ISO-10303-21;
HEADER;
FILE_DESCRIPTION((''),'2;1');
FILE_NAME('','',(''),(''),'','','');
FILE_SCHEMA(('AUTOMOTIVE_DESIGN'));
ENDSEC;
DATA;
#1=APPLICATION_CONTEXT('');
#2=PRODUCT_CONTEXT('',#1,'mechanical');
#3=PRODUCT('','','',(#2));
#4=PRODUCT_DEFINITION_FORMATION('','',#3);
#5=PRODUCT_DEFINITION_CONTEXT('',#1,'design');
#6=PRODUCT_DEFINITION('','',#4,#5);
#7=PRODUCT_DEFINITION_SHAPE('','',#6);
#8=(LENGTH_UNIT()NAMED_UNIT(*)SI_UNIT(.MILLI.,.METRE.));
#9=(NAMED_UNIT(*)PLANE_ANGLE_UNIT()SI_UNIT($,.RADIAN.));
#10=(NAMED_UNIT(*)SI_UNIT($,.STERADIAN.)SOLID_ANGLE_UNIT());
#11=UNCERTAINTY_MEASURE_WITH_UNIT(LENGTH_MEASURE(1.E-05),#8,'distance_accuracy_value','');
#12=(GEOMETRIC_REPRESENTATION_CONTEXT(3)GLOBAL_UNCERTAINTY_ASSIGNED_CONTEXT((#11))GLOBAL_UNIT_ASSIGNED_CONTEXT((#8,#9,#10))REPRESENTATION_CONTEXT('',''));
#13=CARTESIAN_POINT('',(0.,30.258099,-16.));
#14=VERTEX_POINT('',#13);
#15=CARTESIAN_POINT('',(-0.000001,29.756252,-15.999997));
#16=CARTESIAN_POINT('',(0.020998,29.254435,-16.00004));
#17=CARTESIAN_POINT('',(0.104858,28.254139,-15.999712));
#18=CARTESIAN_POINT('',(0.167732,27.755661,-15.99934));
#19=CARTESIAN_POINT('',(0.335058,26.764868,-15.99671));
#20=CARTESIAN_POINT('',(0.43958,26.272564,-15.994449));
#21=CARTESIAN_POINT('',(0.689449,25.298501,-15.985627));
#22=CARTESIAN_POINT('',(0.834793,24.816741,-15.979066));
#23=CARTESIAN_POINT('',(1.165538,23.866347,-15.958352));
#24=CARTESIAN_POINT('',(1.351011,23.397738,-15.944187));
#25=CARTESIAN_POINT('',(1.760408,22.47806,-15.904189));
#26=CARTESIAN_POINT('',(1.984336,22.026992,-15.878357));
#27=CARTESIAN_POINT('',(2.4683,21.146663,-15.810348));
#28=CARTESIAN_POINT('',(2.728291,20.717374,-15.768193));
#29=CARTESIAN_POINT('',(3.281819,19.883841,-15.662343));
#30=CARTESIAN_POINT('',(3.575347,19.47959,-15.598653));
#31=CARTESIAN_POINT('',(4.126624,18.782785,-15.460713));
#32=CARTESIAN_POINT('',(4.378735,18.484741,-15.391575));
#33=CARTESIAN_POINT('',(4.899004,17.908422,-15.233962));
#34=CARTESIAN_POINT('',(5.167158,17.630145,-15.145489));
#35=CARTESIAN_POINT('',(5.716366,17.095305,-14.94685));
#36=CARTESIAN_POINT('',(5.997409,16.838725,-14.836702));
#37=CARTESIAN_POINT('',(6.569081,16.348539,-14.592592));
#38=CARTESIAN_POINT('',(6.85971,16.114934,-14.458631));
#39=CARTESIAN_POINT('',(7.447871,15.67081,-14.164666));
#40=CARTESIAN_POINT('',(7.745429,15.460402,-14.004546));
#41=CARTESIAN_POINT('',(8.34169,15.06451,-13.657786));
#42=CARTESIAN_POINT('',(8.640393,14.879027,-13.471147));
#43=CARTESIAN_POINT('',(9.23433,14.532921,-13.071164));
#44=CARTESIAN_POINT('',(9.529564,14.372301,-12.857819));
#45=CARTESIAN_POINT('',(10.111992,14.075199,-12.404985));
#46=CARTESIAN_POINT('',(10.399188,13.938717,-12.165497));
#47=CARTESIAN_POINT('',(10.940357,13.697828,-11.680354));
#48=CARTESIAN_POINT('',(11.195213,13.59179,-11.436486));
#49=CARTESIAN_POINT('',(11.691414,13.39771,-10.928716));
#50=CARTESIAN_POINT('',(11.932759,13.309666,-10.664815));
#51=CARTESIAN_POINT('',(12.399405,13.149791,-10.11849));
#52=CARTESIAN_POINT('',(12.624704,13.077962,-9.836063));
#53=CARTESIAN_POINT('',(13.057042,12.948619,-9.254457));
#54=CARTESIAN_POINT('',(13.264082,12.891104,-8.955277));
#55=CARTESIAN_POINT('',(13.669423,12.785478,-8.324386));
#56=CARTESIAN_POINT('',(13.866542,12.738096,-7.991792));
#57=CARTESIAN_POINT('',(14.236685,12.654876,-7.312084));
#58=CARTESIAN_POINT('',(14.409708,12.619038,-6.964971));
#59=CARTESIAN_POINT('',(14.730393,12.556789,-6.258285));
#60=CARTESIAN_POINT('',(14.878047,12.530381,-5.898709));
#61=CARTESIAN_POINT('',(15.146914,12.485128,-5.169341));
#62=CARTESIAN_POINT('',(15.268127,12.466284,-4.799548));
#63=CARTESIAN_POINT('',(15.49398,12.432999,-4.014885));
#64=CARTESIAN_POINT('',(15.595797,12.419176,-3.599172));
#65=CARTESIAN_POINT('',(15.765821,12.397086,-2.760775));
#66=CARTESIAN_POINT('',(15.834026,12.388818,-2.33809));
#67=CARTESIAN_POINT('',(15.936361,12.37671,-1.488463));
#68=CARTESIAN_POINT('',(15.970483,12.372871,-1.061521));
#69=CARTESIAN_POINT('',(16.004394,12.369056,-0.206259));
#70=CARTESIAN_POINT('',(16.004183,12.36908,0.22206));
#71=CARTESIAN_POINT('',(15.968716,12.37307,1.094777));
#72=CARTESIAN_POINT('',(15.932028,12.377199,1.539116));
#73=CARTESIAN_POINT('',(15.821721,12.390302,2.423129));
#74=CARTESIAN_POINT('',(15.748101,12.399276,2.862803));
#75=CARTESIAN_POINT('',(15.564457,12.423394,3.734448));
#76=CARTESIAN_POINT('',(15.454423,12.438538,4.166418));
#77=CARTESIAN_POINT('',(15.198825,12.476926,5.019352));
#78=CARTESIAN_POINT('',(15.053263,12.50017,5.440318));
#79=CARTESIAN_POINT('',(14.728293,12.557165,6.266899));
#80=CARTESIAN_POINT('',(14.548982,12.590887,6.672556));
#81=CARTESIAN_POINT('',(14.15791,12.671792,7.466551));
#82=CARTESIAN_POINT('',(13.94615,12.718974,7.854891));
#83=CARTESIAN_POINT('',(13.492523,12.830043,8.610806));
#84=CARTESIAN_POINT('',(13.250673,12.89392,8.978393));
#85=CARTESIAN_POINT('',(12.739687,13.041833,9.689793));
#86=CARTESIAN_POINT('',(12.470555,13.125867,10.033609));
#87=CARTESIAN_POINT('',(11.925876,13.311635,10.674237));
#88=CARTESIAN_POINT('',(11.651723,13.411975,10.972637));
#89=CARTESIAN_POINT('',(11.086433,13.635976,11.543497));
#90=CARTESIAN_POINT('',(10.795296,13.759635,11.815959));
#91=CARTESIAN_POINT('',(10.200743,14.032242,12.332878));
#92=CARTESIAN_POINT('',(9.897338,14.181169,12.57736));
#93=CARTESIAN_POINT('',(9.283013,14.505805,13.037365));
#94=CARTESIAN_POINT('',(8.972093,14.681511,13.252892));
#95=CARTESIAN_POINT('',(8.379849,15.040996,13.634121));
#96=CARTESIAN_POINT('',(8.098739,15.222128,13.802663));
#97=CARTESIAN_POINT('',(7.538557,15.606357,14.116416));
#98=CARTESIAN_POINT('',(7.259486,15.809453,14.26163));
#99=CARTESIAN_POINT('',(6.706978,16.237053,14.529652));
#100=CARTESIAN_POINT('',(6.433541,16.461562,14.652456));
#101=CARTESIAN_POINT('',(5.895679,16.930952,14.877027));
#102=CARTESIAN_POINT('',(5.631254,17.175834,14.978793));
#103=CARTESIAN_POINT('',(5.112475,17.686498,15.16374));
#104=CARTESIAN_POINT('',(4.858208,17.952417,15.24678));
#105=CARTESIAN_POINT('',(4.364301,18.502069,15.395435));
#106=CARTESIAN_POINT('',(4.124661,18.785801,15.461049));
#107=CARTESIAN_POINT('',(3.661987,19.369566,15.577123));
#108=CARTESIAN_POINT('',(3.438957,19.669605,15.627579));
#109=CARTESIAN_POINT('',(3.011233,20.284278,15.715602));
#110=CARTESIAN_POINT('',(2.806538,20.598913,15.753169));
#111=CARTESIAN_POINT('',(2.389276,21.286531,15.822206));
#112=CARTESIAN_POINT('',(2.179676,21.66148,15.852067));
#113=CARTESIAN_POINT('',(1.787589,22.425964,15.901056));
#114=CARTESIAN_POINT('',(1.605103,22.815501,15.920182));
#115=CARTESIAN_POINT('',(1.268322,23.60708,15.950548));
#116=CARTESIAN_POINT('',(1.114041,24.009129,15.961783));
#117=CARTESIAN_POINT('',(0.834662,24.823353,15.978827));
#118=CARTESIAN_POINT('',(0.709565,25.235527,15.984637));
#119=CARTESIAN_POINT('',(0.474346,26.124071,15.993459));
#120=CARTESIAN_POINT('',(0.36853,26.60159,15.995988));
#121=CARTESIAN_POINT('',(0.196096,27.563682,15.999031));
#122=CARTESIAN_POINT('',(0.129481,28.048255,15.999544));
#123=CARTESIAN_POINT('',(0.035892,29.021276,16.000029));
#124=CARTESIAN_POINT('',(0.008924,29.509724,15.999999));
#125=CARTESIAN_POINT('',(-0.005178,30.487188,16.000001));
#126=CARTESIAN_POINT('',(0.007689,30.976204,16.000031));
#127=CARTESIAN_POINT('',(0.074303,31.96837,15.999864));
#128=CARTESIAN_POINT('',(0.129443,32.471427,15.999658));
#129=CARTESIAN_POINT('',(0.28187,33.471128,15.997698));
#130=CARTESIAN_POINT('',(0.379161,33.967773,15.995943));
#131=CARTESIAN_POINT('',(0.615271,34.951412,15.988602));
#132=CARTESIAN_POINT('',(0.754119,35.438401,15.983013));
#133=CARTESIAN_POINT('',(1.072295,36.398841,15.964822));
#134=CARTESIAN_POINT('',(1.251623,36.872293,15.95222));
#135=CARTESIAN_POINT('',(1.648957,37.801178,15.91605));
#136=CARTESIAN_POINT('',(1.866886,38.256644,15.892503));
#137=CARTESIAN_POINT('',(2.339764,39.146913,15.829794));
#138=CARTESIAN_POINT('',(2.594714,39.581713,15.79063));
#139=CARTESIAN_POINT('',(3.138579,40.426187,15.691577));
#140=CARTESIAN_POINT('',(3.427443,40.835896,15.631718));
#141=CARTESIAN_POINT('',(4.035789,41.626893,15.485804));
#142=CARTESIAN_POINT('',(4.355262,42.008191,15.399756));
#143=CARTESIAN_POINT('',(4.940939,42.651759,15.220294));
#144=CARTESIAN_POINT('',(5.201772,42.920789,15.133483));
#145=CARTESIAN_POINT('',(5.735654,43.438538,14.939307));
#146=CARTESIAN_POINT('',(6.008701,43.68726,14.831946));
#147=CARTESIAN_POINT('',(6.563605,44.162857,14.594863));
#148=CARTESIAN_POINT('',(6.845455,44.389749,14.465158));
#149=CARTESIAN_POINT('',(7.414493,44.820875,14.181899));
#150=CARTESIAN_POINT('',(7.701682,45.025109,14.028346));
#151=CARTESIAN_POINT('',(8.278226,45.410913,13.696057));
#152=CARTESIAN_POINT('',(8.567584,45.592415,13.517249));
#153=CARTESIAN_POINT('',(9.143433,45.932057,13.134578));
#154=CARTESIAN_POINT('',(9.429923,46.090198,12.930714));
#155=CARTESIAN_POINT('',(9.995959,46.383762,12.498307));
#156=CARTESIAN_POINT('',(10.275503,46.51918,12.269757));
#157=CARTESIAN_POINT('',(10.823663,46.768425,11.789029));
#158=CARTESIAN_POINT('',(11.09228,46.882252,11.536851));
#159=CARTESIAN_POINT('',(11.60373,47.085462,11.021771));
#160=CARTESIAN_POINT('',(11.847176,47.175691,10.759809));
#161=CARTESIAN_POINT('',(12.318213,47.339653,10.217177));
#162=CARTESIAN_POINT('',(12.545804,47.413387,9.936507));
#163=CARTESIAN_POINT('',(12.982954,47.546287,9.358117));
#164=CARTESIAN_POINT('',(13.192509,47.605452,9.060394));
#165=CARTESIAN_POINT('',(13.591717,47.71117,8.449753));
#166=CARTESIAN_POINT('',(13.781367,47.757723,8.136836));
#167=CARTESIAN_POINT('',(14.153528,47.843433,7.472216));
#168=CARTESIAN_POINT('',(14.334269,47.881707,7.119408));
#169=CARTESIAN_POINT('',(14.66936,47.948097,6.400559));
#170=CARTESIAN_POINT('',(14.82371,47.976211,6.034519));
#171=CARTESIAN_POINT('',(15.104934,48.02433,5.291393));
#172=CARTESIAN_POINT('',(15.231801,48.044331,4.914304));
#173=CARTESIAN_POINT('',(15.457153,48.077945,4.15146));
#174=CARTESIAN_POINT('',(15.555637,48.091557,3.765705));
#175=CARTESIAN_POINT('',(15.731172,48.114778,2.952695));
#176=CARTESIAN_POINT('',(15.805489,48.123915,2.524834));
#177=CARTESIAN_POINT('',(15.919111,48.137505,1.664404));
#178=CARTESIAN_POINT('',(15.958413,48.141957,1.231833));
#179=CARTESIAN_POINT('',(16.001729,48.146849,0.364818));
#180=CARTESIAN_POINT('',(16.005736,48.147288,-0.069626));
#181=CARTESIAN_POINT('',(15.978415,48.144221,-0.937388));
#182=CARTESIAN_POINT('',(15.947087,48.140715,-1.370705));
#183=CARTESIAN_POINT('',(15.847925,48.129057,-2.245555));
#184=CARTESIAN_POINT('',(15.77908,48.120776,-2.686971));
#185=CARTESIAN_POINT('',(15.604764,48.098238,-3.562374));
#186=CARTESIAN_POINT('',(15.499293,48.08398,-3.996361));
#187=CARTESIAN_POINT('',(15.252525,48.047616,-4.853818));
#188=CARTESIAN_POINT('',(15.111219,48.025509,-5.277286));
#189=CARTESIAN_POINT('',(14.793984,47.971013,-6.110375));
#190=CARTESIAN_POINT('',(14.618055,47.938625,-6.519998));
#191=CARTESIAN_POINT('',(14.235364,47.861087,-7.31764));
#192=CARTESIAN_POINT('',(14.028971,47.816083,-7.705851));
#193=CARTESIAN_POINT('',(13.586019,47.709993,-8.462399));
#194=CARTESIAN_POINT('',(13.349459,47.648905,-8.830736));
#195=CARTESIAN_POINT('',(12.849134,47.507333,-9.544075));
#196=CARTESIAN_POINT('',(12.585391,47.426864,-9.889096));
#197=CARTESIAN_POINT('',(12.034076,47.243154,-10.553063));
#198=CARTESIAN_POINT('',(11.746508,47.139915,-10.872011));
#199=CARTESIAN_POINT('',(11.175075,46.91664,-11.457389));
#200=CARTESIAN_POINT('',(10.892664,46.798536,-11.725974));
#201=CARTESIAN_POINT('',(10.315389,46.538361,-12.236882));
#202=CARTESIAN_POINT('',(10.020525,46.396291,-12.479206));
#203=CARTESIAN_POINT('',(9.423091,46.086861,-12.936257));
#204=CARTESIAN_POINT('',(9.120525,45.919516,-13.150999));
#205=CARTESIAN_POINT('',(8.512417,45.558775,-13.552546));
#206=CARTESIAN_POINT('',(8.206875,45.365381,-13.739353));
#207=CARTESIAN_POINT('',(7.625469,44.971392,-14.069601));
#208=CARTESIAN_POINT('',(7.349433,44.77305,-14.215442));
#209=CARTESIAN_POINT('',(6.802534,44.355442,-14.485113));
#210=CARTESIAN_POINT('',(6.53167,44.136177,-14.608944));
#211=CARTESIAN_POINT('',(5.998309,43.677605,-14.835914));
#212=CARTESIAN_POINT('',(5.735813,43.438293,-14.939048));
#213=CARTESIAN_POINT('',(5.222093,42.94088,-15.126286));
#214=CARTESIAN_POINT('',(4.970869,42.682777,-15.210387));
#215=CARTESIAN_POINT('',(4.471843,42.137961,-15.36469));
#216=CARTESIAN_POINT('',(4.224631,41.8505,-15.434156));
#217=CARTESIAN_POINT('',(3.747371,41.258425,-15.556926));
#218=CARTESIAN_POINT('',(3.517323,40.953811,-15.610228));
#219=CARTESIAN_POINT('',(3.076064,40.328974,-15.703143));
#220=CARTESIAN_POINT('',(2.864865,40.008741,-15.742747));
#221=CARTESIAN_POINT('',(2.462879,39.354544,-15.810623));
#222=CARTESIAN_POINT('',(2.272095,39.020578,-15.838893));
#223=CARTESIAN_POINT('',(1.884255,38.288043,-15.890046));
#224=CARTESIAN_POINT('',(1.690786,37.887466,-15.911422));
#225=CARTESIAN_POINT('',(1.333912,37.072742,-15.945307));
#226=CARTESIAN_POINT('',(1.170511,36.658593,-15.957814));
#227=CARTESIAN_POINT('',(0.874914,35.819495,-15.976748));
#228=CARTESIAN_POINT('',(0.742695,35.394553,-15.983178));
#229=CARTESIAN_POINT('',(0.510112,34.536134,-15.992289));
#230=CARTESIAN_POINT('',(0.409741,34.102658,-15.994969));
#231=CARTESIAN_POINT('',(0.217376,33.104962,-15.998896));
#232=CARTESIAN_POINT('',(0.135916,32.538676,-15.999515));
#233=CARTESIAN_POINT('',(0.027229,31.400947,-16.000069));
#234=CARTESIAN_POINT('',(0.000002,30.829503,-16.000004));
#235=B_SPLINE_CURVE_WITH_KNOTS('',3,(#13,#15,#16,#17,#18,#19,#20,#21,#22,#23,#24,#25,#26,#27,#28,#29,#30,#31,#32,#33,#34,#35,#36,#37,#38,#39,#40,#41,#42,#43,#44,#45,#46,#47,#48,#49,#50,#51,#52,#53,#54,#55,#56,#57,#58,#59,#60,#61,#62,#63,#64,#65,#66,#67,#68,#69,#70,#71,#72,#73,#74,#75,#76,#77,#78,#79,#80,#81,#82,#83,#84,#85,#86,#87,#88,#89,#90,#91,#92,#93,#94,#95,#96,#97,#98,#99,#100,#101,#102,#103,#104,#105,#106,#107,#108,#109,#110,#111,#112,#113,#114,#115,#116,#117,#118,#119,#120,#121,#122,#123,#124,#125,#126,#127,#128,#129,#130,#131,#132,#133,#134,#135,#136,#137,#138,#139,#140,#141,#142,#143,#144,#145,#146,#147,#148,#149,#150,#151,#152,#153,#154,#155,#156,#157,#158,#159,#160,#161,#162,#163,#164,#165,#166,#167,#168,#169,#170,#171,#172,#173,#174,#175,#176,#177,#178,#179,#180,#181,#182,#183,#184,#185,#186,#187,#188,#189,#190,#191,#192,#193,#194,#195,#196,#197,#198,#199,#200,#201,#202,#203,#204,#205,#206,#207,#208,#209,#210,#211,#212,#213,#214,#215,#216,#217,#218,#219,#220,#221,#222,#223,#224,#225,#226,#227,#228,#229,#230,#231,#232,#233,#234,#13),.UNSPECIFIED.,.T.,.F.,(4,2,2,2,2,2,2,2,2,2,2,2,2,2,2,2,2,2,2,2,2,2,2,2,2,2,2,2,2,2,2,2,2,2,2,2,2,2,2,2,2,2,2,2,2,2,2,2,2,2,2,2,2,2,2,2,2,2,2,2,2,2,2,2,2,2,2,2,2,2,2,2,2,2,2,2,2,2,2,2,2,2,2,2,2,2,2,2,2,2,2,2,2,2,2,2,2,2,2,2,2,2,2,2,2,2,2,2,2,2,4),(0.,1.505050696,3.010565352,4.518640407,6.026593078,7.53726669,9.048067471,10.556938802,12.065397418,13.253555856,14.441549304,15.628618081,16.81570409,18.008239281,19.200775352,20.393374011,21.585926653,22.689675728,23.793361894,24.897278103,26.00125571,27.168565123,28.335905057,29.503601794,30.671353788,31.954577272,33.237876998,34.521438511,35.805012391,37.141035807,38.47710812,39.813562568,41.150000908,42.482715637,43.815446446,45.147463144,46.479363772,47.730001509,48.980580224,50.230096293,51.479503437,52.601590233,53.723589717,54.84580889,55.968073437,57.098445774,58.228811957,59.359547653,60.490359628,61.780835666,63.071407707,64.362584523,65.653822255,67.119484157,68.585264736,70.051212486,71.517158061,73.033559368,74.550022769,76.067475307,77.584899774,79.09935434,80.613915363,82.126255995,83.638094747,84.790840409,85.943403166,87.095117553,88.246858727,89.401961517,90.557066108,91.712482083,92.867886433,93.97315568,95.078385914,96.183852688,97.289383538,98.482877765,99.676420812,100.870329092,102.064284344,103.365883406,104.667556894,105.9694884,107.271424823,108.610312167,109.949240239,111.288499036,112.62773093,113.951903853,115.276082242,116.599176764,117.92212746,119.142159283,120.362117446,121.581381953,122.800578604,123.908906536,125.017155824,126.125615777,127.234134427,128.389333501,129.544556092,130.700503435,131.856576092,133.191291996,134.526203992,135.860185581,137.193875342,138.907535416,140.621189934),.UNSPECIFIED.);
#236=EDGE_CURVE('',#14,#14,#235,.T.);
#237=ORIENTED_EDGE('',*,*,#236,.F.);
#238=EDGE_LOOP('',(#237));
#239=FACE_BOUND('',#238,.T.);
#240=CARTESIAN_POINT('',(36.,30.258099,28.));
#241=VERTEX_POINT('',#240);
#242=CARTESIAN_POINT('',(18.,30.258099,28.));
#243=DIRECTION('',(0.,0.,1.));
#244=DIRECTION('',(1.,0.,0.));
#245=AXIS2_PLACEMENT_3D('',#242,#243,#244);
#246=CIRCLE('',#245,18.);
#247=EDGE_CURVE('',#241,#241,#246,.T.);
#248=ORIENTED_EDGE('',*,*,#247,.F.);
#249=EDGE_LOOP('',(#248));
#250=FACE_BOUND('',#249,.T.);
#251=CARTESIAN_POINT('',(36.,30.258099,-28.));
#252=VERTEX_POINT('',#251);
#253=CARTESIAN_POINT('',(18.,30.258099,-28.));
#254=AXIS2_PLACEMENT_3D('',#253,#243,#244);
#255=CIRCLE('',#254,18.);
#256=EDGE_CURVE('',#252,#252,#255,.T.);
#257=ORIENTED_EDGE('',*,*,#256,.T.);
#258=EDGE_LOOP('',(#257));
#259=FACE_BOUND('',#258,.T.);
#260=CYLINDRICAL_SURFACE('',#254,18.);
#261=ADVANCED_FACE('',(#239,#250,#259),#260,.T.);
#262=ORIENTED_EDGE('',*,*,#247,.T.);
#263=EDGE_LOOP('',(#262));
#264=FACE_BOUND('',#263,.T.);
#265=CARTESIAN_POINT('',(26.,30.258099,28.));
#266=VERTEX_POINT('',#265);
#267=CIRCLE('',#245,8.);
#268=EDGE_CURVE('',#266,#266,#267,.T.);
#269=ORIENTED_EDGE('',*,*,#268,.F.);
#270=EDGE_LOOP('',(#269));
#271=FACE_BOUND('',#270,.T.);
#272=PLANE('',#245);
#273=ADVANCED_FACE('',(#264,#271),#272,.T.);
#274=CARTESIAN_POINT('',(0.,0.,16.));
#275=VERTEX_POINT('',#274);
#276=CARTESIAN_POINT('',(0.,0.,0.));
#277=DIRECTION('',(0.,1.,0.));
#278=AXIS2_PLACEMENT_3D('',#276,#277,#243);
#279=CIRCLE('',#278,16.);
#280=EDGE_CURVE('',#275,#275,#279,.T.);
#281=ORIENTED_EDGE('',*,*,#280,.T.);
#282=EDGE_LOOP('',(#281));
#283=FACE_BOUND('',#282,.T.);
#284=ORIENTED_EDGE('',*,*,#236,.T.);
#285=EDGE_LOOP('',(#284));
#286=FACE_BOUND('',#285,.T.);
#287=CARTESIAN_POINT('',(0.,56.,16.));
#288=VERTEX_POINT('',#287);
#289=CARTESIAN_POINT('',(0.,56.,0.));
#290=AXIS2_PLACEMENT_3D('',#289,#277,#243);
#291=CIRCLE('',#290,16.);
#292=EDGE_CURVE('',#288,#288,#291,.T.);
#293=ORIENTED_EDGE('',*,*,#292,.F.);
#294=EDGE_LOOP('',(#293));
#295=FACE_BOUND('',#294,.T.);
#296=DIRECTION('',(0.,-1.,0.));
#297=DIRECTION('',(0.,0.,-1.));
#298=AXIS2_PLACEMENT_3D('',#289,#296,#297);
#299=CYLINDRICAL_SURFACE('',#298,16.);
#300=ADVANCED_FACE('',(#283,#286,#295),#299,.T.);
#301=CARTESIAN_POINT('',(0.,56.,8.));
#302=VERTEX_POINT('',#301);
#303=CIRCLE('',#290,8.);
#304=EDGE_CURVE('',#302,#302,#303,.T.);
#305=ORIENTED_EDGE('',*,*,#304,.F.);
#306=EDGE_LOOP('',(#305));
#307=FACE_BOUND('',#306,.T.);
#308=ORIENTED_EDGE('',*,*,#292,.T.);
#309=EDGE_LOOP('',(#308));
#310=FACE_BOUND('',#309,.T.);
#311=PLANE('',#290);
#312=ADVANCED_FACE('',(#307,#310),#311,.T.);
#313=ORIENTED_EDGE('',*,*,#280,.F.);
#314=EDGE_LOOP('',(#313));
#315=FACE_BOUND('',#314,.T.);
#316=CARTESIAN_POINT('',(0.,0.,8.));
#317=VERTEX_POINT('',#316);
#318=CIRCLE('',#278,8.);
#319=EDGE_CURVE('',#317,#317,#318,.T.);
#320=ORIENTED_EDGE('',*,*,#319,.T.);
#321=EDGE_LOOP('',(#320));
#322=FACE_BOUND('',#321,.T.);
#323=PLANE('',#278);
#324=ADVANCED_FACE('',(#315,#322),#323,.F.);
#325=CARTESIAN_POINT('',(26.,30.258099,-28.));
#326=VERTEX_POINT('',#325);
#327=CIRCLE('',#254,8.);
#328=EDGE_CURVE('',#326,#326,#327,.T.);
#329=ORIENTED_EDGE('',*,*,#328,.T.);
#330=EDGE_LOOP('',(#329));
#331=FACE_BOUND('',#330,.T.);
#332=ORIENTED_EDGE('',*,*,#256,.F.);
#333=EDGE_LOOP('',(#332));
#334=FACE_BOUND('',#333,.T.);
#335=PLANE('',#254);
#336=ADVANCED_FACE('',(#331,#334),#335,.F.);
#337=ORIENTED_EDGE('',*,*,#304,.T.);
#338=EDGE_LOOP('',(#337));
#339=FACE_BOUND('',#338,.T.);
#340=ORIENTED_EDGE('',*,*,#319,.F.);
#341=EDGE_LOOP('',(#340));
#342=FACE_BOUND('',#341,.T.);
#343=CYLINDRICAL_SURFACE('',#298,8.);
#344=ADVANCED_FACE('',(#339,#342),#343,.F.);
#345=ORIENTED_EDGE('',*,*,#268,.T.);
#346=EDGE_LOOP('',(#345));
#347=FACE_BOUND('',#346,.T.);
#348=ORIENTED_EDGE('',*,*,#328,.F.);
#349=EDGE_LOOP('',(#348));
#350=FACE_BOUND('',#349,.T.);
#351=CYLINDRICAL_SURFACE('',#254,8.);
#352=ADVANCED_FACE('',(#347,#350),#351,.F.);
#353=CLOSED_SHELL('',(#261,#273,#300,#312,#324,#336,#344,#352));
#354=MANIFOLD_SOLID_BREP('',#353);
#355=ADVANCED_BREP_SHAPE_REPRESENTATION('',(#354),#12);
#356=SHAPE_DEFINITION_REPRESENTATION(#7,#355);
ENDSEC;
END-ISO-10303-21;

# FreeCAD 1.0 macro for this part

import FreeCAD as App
import Part
import Sketcher
Q = App.Units.Quantity

doc = App.newDocument("Part")
body = doc.addObject("PartDesign::Body", "Body")

# Sketch on XZ plane
sketch1 = doc.addObject("Sketcher::SketchObject", "Sketch")
body.addObject(sketch1)
sketch1.AttachmentSupport = (doc.XZ_Plane, [""])
sketch1.MapMode = "FlatFace"
sketch1.addGeometry(Part.Circle(App.Vector(0, 0, 0), App.Vector(0, 0, 1), 16), False)
sketch1.addGeometry(Part.Circle(App.Vector(0, 0, 0), App.Vector(0, 0, 1), 8), False)
sketch1.addConstraint(Sketcher.Constraint("Coincident", 0, 3, -1, 1))
sketch1.addConstraint(Sketcher.Constraint("Coincident", 1, 3, -1, 1))
sketch1.addConstraint(Sketcher.Constraint("Diameter", 0, Q("32 mm")))
sketch1.addConstraint(Sketcher.Constraint("Diameter", 1, Q("16 mm")))
pad1 = doc.addObject("PartDesign::Pad", "Pad")
body.addObject(pad1)
pad1.Profile = sketch1
pad1.Length = 56
pad1.Reversed = True

# Sketch on XY plane
sketch2 = doc.addObject("Sketcher::SketchObject", "Sketch001")
body.addObject(sketch2)
sketch2.AttachmentSupport = (doc.XY_Plane, [""])
sketch2.MapMode = "FlatFace"
sketch2.addGeometry(Part.Circle(App.Vector(18, 30, 0), App.Vector(0, 0, 1), 18), False)
sketch2.addGeometry(Part.Circle(App.Vector(18, 30, 0), App.Vector(0, 0, 1), 8), False)
sketch2.addConstraint(Sketcher.Constraint("Coincident", 1, 3, 0, 3))
sketch2.addConstraint(Sketcher.Constraint("Diameter", 0, Q("36 mm")))
sketch2.addConstraint(Sketcher.Constraint("Diameter", 1, Q("16 mm")))
sketch2.addConstraint(Sketcher.Constraint("DistanceX", -1, 1, 0, 3, Q("18 mm")))
sketch2.addConstraint(Sketcher.Constraint("DistanceY", -1, 1, 0, 3, Q("30.258099 mm")))
pad2 = doc.addObject("PartDesign::Pad", "Pad001")
body.addObject(pad2)
pad2.Profile = sketch2
pad2.Type = "TwoLengths"
pad2.Length = 28
pad2.Length2 = 28

# Sketch on XZ plane
sketch3 = doc.addObject("Sketcher::SketchObject", "Sketch002")
body.addObject(sketch3)
sketch3.AttachmentSupport = (doc.XZ_Plane, [""])
sketch3.MapMode = "FlatFace"
sketch3.AttachmentOffset = App.Placement(App.Vector(0, 0, -56), App.Rotation())
sketch3.addGeometry(Part.Circle(App.Vector(0, 0, 0), App.Vector(0, 0, 1), 8), False)
sketch3.addConstraint(Sketcher.Constraint("Coincident", 0, 3, -1, 1))
sketch3.addConstraint(Sketcher.Constraint("Diameter", 0, Q("16 mm")))
pocket1 = doc.addObject("PartDesign::Pocket", "Pocket")
body.addObject(pocket1)
pocket1.Profile = sketch3
pocket1.Type = "ThroughAll"
pocket1.Reversed = True

# Sketch on XY plane
sketch4 = doc.addObject("Sketcher::SketchObject", "Sketch003")
body.addObject(sketch4)
sketch4.AttachmentSupport = (doc.XY_Plane, [""])
sketch4.MapMode = "FlatFace"
sketch4.AttachmentOffset = App.Placement(App.Vector(0, 0, 28), App.Rotation())
sketch4.addGeometry(Part.Circle(App.Vector(18, 30, 0), App.Vector(0, 0, 1), 8), False)
sketch4.addConstraint(Sketcher.Constraint("Diameter", 0, Q("16 mm")))
sketch4.addConstraint(Sketcher.Constraint("DistanceX", -1, 1, 0, 3, Q("18 mm")))
sketch4.addConstraint(Sketcher.Constraint("DistanceY", -1, 1, 0, 3, Q("30.258099 mm")))
pocket2 = doc.addObject("PartDesign::Pocket", "Pocket001")
body.addObject(pocket2)
pocket2.Profile = sketch4
pocket2.Type = "ThroughAll"

doc.recompute()
